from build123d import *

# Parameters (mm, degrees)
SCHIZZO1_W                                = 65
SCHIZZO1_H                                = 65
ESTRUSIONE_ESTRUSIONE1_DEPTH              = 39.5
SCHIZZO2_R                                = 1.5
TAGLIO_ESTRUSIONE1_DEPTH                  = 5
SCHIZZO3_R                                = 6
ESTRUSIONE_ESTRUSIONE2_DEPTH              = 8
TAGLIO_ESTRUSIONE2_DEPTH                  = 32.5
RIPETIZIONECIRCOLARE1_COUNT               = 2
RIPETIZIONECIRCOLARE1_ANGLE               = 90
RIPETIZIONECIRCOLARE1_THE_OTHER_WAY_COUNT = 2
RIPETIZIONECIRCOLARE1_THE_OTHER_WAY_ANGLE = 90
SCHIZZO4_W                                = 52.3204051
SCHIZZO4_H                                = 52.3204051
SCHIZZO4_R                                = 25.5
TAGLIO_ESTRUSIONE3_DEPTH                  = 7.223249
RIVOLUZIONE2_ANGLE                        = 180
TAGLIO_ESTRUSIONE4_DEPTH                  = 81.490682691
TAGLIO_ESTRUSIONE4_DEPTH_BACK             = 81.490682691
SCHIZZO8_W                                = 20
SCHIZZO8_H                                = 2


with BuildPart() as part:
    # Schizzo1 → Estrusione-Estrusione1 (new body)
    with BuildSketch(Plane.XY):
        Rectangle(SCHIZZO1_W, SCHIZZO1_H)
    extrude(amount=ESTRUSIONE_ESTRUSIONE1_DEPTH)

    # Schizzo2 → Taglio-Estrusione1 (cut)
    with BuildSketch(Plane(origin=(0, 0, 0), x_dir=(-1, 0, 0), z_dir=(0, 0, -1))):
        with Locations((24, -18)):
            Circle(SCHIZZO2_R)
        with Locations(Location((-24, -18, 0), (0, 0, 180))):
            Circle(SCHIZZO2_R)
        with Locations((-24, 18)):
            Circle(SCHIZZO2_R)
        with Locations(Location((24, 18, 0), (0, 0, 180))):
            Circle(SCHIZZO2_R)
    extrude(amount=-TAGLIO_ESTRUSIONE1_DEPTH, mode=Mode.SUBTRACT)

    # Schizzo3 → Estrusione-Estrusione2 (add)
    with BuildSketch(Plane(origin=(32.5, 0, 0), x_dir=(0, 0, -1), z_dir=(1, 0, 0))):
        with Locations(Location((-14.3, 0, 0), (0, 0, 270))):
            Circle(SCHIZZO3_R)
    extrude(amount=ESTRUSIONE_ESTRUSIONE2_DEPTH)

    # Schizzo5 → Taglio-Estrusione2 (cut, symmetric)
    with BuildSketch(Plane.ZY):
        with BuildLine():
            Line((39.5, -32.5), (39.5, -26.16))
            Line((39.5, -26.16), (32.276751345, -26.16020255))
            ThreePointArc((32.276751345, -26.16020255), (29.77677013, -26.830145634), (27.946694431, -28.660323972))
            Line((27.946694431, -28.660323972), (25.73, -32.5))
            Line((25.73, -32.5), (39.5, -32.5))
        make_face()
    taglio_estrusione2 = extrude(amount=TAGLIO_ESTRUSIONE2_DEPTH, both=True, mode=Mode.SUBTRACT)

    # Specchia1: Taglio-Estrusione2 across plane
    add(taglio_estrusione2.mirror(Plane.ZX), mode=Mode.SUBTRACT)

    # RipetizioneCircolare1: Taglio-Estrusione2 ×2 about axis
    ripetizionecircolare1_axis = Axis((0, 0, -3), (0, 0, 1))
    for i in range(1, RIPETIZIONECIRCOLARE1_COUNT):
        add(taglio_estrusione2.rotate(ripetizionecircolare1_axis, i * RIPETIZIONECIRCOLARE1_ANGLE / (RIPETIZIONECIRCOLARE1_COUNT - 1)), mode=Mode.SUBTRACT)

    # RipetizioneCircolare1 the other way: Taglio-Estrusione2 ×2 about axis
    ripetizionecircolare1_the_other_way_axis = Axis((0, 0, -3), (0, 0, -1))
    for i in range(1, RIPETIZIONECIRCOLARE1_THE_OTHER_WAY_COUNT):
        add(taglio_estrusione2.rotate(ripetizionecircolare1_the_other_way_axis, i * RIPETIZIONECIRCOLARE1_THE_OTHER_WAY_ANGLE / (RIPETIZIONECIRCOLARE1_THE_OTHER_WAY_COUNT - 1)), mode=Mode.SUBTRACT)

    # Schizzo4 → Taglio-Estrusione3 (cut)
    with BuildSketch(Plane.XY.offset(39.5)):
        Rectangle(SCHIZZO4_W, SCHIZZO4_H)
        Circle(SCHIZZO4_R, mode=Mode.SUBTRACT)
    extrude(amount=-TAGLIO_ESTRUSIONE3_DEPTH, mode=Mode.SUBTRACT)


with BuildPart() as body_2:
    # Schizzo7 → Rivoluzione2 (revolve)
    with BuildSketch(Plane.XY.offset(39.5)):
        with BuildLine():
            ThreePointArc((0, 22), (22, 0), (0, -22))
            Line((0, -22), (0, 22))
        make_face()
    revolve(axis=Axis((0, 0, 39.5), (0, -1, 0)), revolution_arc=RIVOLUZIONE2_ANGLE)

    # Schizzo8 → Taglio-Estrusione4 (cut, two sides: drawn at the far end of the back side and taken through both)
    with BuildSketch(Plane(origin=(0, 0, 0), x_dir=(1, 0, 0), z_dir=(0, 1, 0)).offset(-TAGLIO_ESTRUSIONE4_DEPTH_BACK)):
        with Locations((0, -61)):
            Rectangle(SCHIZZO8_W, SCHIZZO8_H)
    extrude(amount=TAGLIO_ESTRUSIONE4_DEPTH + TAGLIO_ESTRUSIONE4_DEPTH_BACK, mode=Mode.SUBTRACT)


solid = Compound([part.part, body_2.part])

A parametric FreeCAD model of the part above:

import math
import FreeCAD as App
import Part
import Sketcher
Q = App.Units.Quantity

doc = App.newDocument("Part")
body = doc.addObject("PartDesign::Body", "Body")

# Sketch on XY plane
sketch1 = doc.addObject("Sketcher::SketchObject", "Sketch")
body.addObject(sketch1)
sketch1.AttachmentSupport = (doc.XY_Plane, [""])
sketch1.MapMode = "FlatFace"
sketch1.addGeometry(Part.LineSegment(App.Vector(-32.5, 32.5, 0), App.Vector(-32.5, -32.5, 0)), False)
sketch1.addGeometry(Part.LineSegment(App.Vector(-32.5, -32.5, 0), App.Vector(32.5, -32.5, 0)), False)
sketch1.addGeometry(Part.LineSegment(App.Vector(32.5, -32.5, 0), App.Vector(32.5, 32.5, 0)), False)
sketch1.addGeometry(Part.LineSegment(App.Vector(32.5, 32.5, 0), App.Vector(-32.5, 32.5, 0)), False)
sketch1.addConstraint(Sketcher.Constraint("Coincident", 0, 2, 1, 1))
sketch1.addConstraint(Sketcher.Constraint("Coincident", 1, 2, 2, 1))
sketch1.addConstraint(Sketcher.Constraint("Coincident", 2, 2, 3, 1))
sketch1.addConstraint(Sketcher.Constraint("Coincident", 3, 2, 0, 1))
sketch1.addConstraint(Sketcher.Constraint("Vertical", 0))
sketch1.addConstraint(Sketcher.Constraint("Horizontal", 1))
sketch1.addConstraint(Sketcher.Constraint("Vertical", 2))
sketch1.addConstraint(Sketcher.Constraint("Horizontal", 3))
sketch1.addConstraint(Sketcher.Constraint("Symmetric", 0, 2, 2, 2, -1, 1))
sketch1.addConstraint(Sketcher.Constraint("Equal", 3, 0))
sketch1.addConstraint(Sketcher.Constraint("DistanceX", 1, 1, 1, 2, Q("65 mm")))
pad1 = doc.addObject("PartDesign::Pad", "Pad")
body.addObject(pad1)
pad1.Profile = sketch1
pad1.Length = 39.5

# Sketch on XY plane
sketch2 = doc.addObject("Sketcher::SketchObject", "Sketch001")
body.addObject(sketch2)
sketch2.AttachmentSupport = (doc.XY_Plane, [""])
sketch2.MapMode = "FlatFace"
sketch2.addGeometry(Part.Circle(App.Vector(-24, -18, 0), App.Vector(0, 0, 1), 1.5), False)
sketch2.addGeometry(Part.Circle(App.Vector(24, -18, 0), App.Vector(0, 0, 1), 1.5), False)
sketch2.addGeometry(Part.Circle(App.Vector(24, 18, 0), App.Vector(0, 0, 1), 1.5), False)
sketch2.addGeometry(Part.Circle(App.Vector(-24, 18, 0), App.Vector(0, 0, 1), 1.5), False)
sketch2.addConstraint(Sketcher.Constraint("Equal", 0, 1))
sketch2.addConstraint(Sketcher.Constraint("Equal", 1, 2))
sketch2.addConstraint(Sketcher.Constraint("Equal", 2, 3))
sketch2.addConstraint(Sketcher.Constraint("Symmetric", 0, 3, 2, 3, -1, 1))
sketch2.addConstraint(Sketcher.Constraint("Symmetric", 1, 3, 3, 3, -1, 1))
sketch2.addConstraint(Sketcher.Constraint("Symmetric", 0, 3, 1, 3, -2))
sketch2.addConstraint(Sketcher.Constraint("Diameter", 0, Q("3 mm")))
sketch2.addConstraint(Sketcher.Constraint("DistanceX", 0, 3, -1, 1, Q("24 mm")))
sketch2.addConstraint(Sketcher.Constraint("DistanceY", 0, 3, -1, 1, Q("18 mm")))
pocket1 = doc.addObject("PartDesign::Pocket", "Pocket")
body.addObject(pocket1)
pocket1.Profile = sketch2
pocket1.Length = 5
pocket1.Reversed = True

# Sketch on YZ plane
sketch3 = doc.addObject("Sketcher::SketchObject", "Sketch002")
body.addObject(sketch3)
sketch3.AttachmentSupport = (doc.YZ_Plane, [""])
sketch3.MapMode = "FlatFace"
sketch3.AttachmentOffset = App.Placement(App.Vector(0, 0, 32.5), App.Rotation())
sketch3.addGeometry(Part.Circle(App.Vector(0, 14.3, 0), App.Vector(0, 0, 1), 6), False)
sketch3.addConstraint(Sketcher.Constraint("PointOnObject", 0, 3, -2))
sketch3.addConstraint(Sketcher.Constraint("Diameter", 0, Q("12 mm")))
sketch3.addConstraint(Sketcher.Constraint("DistanceY", -1, 1, 0, 3, Q("14.3 mm")))
pad2 = doc.addObject("PartDesign::Pad", "Pad001")
body.addObject(pad2)
pad2.Profile = sketch3
pad2.Length = 8

# Sketch on YZ plane
sketch4 = doc.addObject("Sketcher::SketchObject", "Sketch003")
body.addObject(sketch4)
sketch4.AttachmentSupport = (doc.YZ_Plane, [""])
sketch4.MapMode = "FlatFace"
sketch4.addGeometry(Part.LineSegment(App.Vector(-32.5, 39.5, 0), App.Vector(-26.16, 39.5, 0)), False)
sketch4.addGeometry(Part.LineSegment(App.Vector(-26.16, 39.5, 0), App.Vector(-26.160203, 32.276751, 0)), False)
sketch4.addGeometry(Part.ArcOfCircle(Part.Circle(App.Vector(-31.160203, 32.276892, 0), App.Vector(0, 0, 1), 5), math.radians(-60.001607), math.radians(-0.001607)), False)
sketch4.addGeometry(Part.LineSegment(App.Vector(-28.660324, 27.946694, 0), App.Vector(-32.5, 25.73, 0)), False)
sketch4.addGeometry(Part.LineSegment(App.Vector(-32.5, 25.73, 0), App.Vector(-32.5, 39.5, 0)), False)
sketch4.addConstraint(Sketcher.Constraint("Coincident", 0, 2, 1, 1))
sketch4.addConstraint(Sketcher.Constraint("Tangent", 1, 2, 2, 2))
sketch4.addConstraint(Sketcher.Constraint("Tangent", 2, 1, 3, 1))
sketch4.addConstraint(Sketcher.Constraint("Coincident", 3, 2, 4, 1))
sketch4.addConstraint(Sketcher.Constraint("Coincident", 4, 2, 0, 1))
sketch4.addConstraint(Sketcher.Constraint("Horizontal", 0))
sketch4.addConstraint(Sketcher.Constraint("Vertical", 4))
sketch4.addConstraint(Sketcher.Constraint("Radius", 2, Q("5 mm")))
sketch4.addConstraint(Sketcher.Constraint("DistanceX", 0, 1, 0, 2, Q("6.34 mm")))
sketch4.addConstraint(Sketcher.Constraint("DistanceY", 4, 1, 4, 2, Q("13.77 mm")))
sketch4.addConstraint(Sketcher.Constraint("DistanceY", -1, 1, 0, 2, Q("39.5 mm")))
sketch4.addConstraint(Sketcher.Constraint("DistanceX", 3, 2, -1, 1, Q("32.5 mm")))
sketch4.addConstraint(Sketcher.Constraint("Distance", 1, Q("7.223249 mm")))
sketch4.addConstraint(Sketcher.Constraint("DistanceY", -1, 1, 2, 3, Q("32.276892 mm")))
pocket2 = doc.addObject("PartDesign::Pocket", "Pocket001")
body.addObject(pocket2)
pocket2.Profile = sketch4
pocket2.Length = 65
pocket2.Midplane = True
doc.recompute()

mirrored = doc.addObject("PartDesign::Mirrored", "Mirrored")
body.addObject(mirrored)
mirrored.Originals = [pocket2]
mirrored.MirrorPlane = (doc.XZ_Plane, [""])
body.Tip = mirrored
doc.recompute()

polarpattern = doc.addObject("PartDesign::PolarPattern", "PolarPattern")
body.addObject(polarpattern)
polarpattern.Originals = [pocket2]
polarpattern.Axis = (doc.Z_Axis, [""])
polarpattern.Angle = 90
polarpattern.Occurrences = 2
body.Tip = polarpattern
doc.recompute()

polarpattern2 = doc.addObject("PartDesign::PolarPattern", "PolarPattern001")
body.addObject(polarpattern2)
polarpattern2.Originals = [pocket2]
polarpattern2.Axis = (doc.Z_Axis, [""])
polarpattern2.Angle = 90
polarpattern2.Occurrences = 2
polarpattern2.Reversed = True
body.Tip = polarpattern2

# Sketch on XY plane
sketch5 = doc.addObject("Sketcher::SketchObject", "Sketch004")
body.addObject(sketch5)
sketch5.AttachmentSupport = (doc.XY_Plane, [""])
sketch5.MapMode = "FlatFace"
sketch5.AttachmentOffset = App.Placement(App.Vector(0, 0, 39.5), App.Rotation())
sketch5.addGeometry(Part.LineSegment(App.Vector(-26.160203, 26.160203, 0), App.Vector(-26.160203, -26.160203, 0)), False)
sketch5.addGeometry(Part.LineSegment(App.Vector(-26.160203, -26.160203, 0), App.Vector(26.160203, -26.160203, 0)), False)
sketch5.addGeometry(Part.LineSegment(App.Vector(26.160203, -26.160203, 0), App.Vector(26.160203, 26.160203, 0)), False)
sketch5.addGeometry(Part.LineSegment(App.Vector(26.160203, 26.160203, 0), App.Vector(-26.160203, 26.160203, 0)), False)
sketch5.addGeometry(Part.Circle(App.Vector(0, 0, 0), App.Vector(0, 0, 1), 25.5), False)
sketch5.addConstraint(Sketcher.Constraint("Coincident", 0, 2, 1, 1))
sketch5.addConstraint(Sketcher.Constraint("Coincident", 1, 2, 2, 1))
sketch5.addConstraint(Sketcher.Constraint("Coincident", 2, 2, 3, 1))
sketch5.addConstraint(Sketcher.Constraint("Coincident", 3, 2, 0, 1))
sketch5.addConstraint(Sketcher.Constraint("Vertical", 0))
sketch5.addConstraint(Sketcher.Constraint("Horizontal", 1))
sketch5.addConstraint(Sketcher.Constraint("Vertical", 2))
sketch5.addConstraint(Sketcher.Constraint("Horizontal", 3))
sketch5.addConstraint(Sketcher.Constraint("Coincident", 4, 3, -1, 1))
sketch5.addConstraint(Sketcher.Constraint("Symmetric", 0, 2, 2, 2, -1, 1))
sketch5.addConstraint(Sketcher.Constraint("Equal", 3, 0))
sketch5.addConstraint(Sketcher.Constraint("Diameter", 4, Q("51 mm")))
sketch5.addConstraint(Sketcher.Constraint("DistanceX", 1, 1, 1, 2, Q("52.320405 mm")))
pocket3 = doc.addObject("PartDesign::Pocket", "Pocket002")
body.addObject(pocket3)
pocket3.Profile = sketch5
pocket3.Length = 7.223249
body2 = doc.addObject("PartDesign::Body", "Body001")

# Sketch on XY plane
sketch6 = doc.addObject("Sketcher::SketchObject", "Sketch005")
body2.addObject(sketch6)
sketch6.AttachmentSupport = (doc.getObject("XY_Plane001"), [""])
sketch6.MapMode = "FlatFace"
sketch6.AttachmentOffset = App.Placement(App.Vector(0, 0, 39.5), App.Rotation())
sketch6.addGeometry(Part.ArcOfCircle(Part.Circle(App.Vector(0, 0, 0), App.Vector(0, 0, 1), 22), math.radians(-90), math.radians(90)), False)
sketch6.addGeometry(Part.LineSegment(App.Vector(0, 22, 0), App.Vector(0, -22, 0)), False)
sketch6.addConstraint(Sketcher.Constraint("Coincident", 0, 1, 1, 2))
sketch6.addConstraint(Sketcher.Constraint("Coincident", 1, 1, 0, 2))
sketch6.addConstraint(Sketcher.Constraint("Vertical", 1))
sketch6.addConstraint(Sketcher.Constraint("Coincident", 0, 3, -1, 1))
sketch6.addConstraint(Sketcher.Constraint("PointOnObject", 0, 1, -2))
sketch6.addConstraint(Sketcher.Constraint("Radius", 0, Q("22 mm")))
revolution = doc.addObject("PartDesign::Revolution", "Revolution")
body2.addObject(revolution)
revolution.Profile = sketch6
revolution.ReferenceAxis = (sketch6, ["V_Axis"])
revolution.Angle = 180
revolution.Reversed = True

# Sketch on XZ plane
sketch7 = doc.addObject("Sketcher::SketchObject", "Sketch006")
body2.addObject(sketch7)
sketch7.AttachmentSupport = (doc.getObject("XZ_Plane001"), [""])
sketch7.MapMode = "FlatFace"
sketch7.addGeometry(Part.LineSegment(App.Vector(-10, 60, 0), App.Vector(-10, 62, 0)), False)
sketch7.addGeometry(Part.LineSegment(App.Vector(-10, 62, 0), App.Vector(10, 62, 0)), False)
sketch7.addGeometry(Part.LineSegment(App.Vector(10, 62, 0), App.Vector(10, 60, 0)), False)
sketch7.addGeometry(Part.LineSegment(App.Vector(10, 60, 0), App.Vector(-10, 60, 0)), False)
sketch7.addConstraint(Sketcher.Constraint("Coincident", 0, 2, 1, 1))
sketch7.addConstraint(Sketcher.Constraint("Coincident", 1, 2, 2, 1))
sketch7.addConstraint(Sketcher.Constraint("Coincident", 2, 2, 3, 1))
sketch7.addConstraint(Sketcher.Constraint("Coincident", 3, 2, 0, 1))
sketch7.addConstraint(Sketcher.Constraint("Vertical", 0))
sketch7.addConstraint(Sketcher.Constraint("Horizontal", 1))
sketch7.addConstraint(Sketcher.Constraint("Vertical", 2))
sketch7.addConstraint(Sketcher.Constraint("Horizontal", 3))
sketch7.addConstraint(Sketcher.Constraint("DistanceX", 1, 1, 1, 2, Q("20 mm")))
sketch7.addConstraint(Sketcher.Constraint("DistanceY", 0, 1, 0, 2, Q("2 mm")))
sketch7.addConstraint(Sketcher.Constraint("DistanceX", 0, 2, -1, 1, Q("10 mm")))
sketch7.addConstraint(Sketcher.Constraint("DistanceY", -1, 1, 0, 2, Q("62 mm")))
pocket4 = doc.addObject("PartDesign::Pocket", "Pocket003")
body2.addObject(pocket4)
pocket4.Profile = sketch7
pocket4.Type = "ThroughAll"
pocket4.Midplane = True

doc.recompute()
